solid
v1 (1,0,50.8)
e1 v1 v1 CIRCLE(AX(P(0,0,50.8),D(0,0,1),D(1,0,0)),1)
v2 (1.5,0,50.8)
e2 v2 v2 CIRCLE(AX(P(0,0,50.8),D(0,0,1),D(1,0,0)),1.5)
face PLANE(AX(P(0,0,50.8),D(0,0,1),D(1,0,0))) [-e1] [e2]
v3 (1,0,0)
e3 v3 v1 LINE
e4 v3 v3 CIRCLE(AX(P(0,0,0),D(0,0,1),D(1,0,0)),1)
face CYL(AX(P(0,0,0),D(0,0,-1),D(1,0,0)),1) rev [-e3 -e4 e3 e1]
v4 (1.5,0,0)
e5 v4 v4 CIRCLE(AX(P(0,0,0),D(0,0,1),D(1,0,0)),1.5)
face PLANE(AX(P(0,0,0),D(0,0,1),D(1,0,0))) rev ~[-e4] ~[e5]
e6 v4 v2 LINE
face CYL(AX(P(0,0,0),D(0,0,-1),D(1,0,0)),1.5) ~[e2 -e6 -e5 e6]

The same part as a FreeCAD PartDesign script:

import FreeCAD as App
import Part
import Sketcher
from FreeCAD import Vector
Q = App.Units.Quantity

doc = App.newDocument("Part")
body = doc.addObject("PartDesign::Body", "Body")

# Sketch on XY plane
sketch1 = body.newObject("Sketcher::SketchObject", "Sketch")
sketch1.AttachmentSupport = (doc.getObject("XY_Plane"), [""])
sketch1.MapMode = "FlatFace"
sketch1.addGeometry(Part.Circle(Vector(0, 0, 0), Vector(0, 0, 1), 1.5), False)
sketch1.addGeometry(Part.Circle(Vector(0, 0, 0), Vector(0, 0, 1), 1), False)
sketch1.addConstraint(Sketcher.Constraint("Coincident", 0, 3, -1, 1))
sketch1.addConstraint(Sketcher.Constraint("Coincident", 1, 3, -1, 1))
sketch1.addConstraint(Sketcher.Constraint("Diameter", 0, Q("3 mm")))
sketch1.addConstraint(Sketcher.Constraint("Diameter", 1, Q("2 mm")))
pad1 = body.newObject("PartDesign::Pad", "Pad")
pad1.Profile = sketch1
pad1.Length = 50.8

doc.recompute()
